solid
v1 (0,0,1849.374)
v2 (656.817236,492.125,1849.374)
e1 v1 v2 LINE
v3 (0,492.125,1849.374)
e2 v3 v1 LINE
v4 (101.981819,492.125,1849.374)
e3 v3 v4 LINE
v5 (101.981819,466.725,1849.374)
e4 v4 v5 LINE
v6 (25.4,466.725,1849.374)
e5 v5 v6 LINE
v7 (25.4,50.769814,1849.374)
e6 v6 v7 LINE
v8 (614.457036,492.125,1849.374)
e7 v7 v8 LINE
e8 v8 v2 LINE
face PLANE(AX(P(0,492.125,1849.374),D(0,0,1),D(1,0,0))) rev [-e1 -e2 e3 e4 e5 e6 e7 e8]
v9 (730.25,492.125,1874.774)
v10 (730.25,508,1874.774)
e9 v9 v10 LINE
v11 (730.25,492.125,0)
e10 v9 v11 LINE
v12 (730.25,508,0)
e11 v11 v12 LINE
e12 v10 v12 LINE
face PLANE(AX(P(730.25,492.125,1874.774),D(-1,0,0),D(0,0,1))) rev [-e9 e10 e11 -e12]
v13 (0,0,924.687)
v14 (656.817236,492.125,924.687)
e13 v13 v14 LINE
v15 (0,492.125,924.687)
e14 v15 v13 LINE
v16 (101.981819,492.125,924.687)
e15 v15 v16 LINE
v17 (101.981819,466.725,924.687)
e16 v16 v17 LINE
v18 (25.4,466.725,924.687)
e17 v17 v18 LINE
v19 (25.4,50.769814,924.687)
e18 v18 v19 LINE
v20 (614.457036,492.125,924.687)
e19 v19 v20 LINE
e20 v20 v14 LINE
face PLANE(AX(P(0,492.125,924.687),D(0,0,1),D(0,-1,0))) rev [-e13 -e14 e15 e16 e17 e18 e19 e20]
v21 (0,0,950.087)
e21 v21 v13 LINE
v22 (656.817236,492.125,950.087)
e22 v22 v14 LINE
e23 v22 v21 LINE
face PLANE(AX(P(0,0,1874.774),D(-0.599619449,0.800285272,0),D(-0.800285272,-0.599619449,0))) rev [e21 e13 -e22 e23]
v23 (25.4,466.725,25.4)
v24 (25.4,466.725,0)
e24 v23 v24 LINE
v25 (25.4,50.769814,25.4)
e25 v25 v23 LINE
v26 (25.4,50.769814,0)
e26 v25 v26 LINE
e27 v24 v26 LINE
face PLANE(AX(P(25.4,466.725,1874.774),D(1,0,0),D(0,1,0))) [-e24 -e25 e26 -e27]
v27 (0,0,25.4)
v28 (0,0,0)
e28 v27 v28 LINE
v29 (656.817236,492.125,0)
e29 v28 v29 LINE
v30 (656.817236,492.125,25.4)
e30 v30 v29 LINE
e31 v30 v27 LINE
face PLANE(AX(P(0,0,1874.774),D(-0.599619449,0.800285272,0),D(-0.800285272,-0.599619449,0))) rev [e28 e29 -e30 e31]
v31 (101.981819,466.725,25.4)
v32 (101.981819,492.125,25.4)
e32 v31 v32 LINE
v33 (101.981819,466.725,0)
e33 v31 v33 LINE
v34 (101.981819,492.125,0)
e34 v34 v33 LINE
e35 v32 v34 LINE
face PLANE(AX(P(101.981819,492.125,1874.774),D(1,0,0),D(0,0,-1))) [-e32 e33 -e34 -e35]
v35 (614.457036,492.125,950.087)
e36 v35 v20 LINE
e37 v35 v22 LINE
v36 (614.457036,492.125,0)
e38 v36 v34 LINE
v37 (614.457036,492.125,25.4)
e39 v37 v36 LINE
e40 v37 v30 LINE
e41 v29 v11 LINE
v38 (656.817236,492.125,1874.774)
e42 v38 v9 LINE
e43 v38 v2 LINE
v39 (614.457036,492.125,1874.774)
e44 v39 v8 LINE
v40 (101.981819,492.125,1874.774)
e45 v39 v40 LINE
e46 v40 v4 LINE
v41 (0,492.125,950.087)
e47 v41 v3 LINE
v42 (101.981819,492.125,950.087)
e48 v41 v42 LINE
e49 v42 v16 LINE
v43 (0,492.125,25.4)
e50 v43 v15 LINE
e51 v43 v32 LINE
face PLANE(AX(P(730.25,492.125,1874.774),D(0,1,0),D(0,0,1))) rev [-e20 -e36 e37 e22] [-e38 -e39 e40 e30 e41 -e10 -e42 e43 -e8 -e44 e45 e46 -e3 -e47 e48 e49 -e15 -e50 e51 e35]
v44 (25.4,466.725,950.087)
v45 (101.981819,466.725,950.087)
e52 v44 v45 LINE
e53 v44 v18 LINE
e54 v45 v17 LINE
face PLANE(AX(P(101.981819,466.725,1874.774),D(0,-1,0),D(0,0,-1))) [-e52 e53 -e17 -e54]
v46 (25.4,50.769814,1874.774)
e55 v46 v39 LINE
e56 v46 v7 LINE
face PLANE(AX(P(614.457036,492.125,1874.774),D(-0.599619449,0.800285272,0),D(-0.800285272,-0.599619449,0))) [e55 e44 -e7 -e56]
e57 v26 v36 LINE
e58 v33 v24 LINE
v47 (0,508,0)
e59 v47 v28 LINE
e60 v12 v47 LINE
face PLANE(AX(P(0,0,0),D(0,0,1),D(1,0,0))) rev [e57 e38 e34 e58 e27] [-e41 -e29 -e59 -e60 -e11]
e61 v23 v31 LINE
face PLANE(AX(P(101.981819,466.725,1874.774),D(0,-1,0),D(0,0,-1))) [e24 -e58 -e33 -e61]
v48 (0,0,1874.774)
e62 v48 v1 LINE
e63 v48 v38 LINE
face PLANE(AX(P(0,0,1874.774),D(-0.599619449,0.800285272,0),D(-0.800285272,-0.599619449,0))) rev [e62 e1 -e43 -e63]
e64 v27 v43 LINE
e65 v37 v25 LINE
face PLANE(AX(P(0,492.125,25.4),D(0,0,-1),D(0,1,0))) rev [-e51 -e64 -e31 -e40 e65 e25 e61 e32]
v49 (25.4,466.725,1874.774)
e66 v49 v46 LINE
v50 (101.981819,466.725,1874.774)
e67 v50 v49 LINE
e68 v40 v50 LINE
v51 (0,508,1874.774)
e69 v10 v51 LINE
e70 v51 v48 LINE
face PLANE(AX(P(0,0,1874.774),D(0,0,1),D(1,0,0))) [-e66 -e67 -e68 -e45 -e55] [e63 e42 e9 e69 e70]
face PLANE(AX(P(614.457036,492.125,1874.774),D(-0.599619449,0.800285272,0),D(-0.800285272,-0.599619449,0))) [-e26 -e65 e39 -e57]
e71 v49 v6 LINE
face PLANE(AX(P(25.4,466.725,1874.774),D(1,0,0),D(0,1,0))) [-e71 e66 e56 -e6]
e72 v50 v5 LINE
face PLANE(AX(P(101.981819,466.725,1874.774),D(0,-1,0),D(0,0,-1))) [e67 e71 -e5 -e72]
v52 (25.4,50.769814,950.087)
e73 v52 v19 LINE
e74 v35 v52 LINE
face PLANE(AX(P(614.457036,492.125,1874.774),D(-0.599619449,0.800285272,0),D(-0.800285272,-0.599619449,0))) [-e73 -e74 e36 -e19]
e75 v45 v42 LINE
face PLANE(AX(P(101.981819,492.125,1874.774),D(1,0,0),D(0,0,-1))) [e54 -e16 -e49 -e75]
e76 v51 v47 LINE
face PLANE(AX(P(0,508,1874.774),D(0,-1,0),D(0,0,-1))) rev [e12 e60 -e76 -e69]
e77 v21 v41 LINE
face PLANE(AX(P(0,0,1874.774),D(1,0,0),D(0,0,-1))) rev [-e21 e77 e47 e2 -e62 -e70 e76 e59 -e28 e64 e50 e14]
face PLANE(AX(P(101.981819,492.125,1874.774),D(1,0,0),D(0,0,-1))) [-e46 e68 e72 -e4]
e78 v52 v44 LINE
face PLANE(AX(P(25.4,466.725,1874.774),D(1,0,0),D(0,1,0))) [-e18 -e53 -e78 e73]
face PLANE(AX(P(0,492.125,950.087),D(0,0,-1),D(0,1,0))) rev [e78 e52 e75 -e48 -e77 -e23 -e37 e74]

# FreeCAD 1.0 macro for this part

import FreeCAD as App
import Part
import Sketcher
from FreeCAD import Vector
Q = App.Units.Quantity


def add_polygon(sketch, points):
    """Adds a closed chain of lines whose ends are joined by coincident constraints."""
    first, n = sketch.GeometryCount, len(points)
    for a, b in zip(points, points[1:] + points[:1]):
        sketch.addGeometry(Part.LineSegment(App.Vector(*a, 0), App.Vector(*b, 0)), False)
    for i in range(n):
        sketch.addConstraint(Sketcher.Constraint("Coincident", first + i, 2, first + (i + 1) % n, 1))

doc = App.newDocument("Part")
body = doc.addObject("PartDesign::Body", "Body")

# Sketch on XY plane
sketch1 = body.newObject("Sketcher::SketchObject", "Sketch")
sketch1.AttachmentSupport = (doc.getObject("XY_Plane"), [""])
sketch1.MapMode = "FlatFace"
add_polygon(sketch1, [(656.817236, 492.125), (730.25, 492.125), (730.25, 508), (0, 508), (0, 0)])  # lines 0-4
add_polygon(sketch1, [(101.981819, 492.125), (614.457036, 492.125), (25.4, 50.769814), (25.4, 466.725), (101.981819, 466.725)])  # lines 5-9
sketch1.addConstraint([
    Sketcher.Constraint("Horizontal", 0),
    Sketcher.Constraint("Vertical", 1),
    Sketcher.Constraint("Horizontal", 2),
    Sketcher.Constraint("Vertical", 3),
    Sketcher.Constraint("Horizontal", 5),
    Sketcher.Constraint("Vertical", 7),
    Sketcher.Constraint("Horizontal", 8),
    Sketcher.Constraint("Vertical", 9),
    Sketcher.Constraint("Coincident", 3, 2, -1, 1),
    Sketcher.Constraint("Parallel", 4, 6),
    Sketcher.Constraint("Horizontal", 4, 2, 5, 2),
    Sketcher.Constraint("DistanceY", 3, 2, 3, 1, Q("20 in")),
    Sketcher.Constraint("DistanceY", 9, 1, 9, 2, Q("1 in")),
    Sketcher.Constraint("DistanceX", -1, 1, 6, 2, Q("1 in")),
    Sketcher.Constraint("DistanceX", 2, 2, 2, 1, Q("28.75 in")),
    Sketcher.Constraint("DistanceY", 1, 1, 1, 2, Q("0.625 in")),
    Sketcher.Constraint("DistanceX", 8, 1, 8, 2, Q("76.581819 mm")),
    Sketcher.Constraint("DistanceX", 5, 2, 4, 2, Q("42.3602 mm")),
    Sketcher.Constraint("Distance", 4, Q("820.728882 mm")),
])
pad1 = body.newObject("PartDesign::Pad", "Pad")
pad1.Profile = sketch1
pad1.Length = Q("73.81 in")

# Sketch on YZ plane
sketch2 = body.newObject("Sketcher::SketchObject", "Sketch001")
sketch2.AttachmentSupport = (doc.getObject("YZ_Plane"), [""])
sketch2.MapMode = "FlatFace"
sketch2.AttachmentOffset = App.Placement(Vector(0, 0, 28.75 * 25.4), App.Rotation())
add_polygon(sketch2, [(492.125, 1849.374), (0, 1849.374), (0, 950.087), (492.125, 950.087)])  # lines 0-3
add_polygon(sketch2, [(492.125, 924.687), (0, 924.687), (0, 25.4), (492.125, 25.4)])  # lines 4-7
sketch2.addConstraint([
    Sketcher.Constraint("Horizontal", 0),
    Sketcher.Constraint("Vertical", 1),
    Sketcher.Constraint("Horizontal", 2),
    Sketcher.Constraint("Vertical", 3),
    Sketcher.Constraint("Horizontal", 4),
    Sketcher.Constraint("Vertical", 5),
    Sketcher.Constraint("Horizontal", 6),
    Sketcher.Constraint("Vertical", 7),
    Sketcher.Constraint("PointOnObject", 0, 2, -2),
    Sketcher.Constraint("PointOnObject", 4, 2, -2),
    Sketcher.Constraint("Vertical", 3, 2, 6, 2),
    Sketcher.Constraint("Equal", 3, 5),
    Sketcher.Constraint("DistanceY", -1, 1, 5, 2, Q("1 in")),
    Sketcher.Constraint("DistanceY", 4, 2, 1, 2, Q("1 in")),
    Sketcher.Constraint("DistanceX", 0, 2, 0, 1, Q("19.375 in")),
    Sketcher.Constraint("DistanceY", 1, 2, 1, 1, Q("35.405 in")),
])
pocket1 = body.newObject("PartDesign::Pocket", "Pocket")
pocket1.Profile = sketch2
pocket1.Type = "ThroughAll"

doc.recompute()
